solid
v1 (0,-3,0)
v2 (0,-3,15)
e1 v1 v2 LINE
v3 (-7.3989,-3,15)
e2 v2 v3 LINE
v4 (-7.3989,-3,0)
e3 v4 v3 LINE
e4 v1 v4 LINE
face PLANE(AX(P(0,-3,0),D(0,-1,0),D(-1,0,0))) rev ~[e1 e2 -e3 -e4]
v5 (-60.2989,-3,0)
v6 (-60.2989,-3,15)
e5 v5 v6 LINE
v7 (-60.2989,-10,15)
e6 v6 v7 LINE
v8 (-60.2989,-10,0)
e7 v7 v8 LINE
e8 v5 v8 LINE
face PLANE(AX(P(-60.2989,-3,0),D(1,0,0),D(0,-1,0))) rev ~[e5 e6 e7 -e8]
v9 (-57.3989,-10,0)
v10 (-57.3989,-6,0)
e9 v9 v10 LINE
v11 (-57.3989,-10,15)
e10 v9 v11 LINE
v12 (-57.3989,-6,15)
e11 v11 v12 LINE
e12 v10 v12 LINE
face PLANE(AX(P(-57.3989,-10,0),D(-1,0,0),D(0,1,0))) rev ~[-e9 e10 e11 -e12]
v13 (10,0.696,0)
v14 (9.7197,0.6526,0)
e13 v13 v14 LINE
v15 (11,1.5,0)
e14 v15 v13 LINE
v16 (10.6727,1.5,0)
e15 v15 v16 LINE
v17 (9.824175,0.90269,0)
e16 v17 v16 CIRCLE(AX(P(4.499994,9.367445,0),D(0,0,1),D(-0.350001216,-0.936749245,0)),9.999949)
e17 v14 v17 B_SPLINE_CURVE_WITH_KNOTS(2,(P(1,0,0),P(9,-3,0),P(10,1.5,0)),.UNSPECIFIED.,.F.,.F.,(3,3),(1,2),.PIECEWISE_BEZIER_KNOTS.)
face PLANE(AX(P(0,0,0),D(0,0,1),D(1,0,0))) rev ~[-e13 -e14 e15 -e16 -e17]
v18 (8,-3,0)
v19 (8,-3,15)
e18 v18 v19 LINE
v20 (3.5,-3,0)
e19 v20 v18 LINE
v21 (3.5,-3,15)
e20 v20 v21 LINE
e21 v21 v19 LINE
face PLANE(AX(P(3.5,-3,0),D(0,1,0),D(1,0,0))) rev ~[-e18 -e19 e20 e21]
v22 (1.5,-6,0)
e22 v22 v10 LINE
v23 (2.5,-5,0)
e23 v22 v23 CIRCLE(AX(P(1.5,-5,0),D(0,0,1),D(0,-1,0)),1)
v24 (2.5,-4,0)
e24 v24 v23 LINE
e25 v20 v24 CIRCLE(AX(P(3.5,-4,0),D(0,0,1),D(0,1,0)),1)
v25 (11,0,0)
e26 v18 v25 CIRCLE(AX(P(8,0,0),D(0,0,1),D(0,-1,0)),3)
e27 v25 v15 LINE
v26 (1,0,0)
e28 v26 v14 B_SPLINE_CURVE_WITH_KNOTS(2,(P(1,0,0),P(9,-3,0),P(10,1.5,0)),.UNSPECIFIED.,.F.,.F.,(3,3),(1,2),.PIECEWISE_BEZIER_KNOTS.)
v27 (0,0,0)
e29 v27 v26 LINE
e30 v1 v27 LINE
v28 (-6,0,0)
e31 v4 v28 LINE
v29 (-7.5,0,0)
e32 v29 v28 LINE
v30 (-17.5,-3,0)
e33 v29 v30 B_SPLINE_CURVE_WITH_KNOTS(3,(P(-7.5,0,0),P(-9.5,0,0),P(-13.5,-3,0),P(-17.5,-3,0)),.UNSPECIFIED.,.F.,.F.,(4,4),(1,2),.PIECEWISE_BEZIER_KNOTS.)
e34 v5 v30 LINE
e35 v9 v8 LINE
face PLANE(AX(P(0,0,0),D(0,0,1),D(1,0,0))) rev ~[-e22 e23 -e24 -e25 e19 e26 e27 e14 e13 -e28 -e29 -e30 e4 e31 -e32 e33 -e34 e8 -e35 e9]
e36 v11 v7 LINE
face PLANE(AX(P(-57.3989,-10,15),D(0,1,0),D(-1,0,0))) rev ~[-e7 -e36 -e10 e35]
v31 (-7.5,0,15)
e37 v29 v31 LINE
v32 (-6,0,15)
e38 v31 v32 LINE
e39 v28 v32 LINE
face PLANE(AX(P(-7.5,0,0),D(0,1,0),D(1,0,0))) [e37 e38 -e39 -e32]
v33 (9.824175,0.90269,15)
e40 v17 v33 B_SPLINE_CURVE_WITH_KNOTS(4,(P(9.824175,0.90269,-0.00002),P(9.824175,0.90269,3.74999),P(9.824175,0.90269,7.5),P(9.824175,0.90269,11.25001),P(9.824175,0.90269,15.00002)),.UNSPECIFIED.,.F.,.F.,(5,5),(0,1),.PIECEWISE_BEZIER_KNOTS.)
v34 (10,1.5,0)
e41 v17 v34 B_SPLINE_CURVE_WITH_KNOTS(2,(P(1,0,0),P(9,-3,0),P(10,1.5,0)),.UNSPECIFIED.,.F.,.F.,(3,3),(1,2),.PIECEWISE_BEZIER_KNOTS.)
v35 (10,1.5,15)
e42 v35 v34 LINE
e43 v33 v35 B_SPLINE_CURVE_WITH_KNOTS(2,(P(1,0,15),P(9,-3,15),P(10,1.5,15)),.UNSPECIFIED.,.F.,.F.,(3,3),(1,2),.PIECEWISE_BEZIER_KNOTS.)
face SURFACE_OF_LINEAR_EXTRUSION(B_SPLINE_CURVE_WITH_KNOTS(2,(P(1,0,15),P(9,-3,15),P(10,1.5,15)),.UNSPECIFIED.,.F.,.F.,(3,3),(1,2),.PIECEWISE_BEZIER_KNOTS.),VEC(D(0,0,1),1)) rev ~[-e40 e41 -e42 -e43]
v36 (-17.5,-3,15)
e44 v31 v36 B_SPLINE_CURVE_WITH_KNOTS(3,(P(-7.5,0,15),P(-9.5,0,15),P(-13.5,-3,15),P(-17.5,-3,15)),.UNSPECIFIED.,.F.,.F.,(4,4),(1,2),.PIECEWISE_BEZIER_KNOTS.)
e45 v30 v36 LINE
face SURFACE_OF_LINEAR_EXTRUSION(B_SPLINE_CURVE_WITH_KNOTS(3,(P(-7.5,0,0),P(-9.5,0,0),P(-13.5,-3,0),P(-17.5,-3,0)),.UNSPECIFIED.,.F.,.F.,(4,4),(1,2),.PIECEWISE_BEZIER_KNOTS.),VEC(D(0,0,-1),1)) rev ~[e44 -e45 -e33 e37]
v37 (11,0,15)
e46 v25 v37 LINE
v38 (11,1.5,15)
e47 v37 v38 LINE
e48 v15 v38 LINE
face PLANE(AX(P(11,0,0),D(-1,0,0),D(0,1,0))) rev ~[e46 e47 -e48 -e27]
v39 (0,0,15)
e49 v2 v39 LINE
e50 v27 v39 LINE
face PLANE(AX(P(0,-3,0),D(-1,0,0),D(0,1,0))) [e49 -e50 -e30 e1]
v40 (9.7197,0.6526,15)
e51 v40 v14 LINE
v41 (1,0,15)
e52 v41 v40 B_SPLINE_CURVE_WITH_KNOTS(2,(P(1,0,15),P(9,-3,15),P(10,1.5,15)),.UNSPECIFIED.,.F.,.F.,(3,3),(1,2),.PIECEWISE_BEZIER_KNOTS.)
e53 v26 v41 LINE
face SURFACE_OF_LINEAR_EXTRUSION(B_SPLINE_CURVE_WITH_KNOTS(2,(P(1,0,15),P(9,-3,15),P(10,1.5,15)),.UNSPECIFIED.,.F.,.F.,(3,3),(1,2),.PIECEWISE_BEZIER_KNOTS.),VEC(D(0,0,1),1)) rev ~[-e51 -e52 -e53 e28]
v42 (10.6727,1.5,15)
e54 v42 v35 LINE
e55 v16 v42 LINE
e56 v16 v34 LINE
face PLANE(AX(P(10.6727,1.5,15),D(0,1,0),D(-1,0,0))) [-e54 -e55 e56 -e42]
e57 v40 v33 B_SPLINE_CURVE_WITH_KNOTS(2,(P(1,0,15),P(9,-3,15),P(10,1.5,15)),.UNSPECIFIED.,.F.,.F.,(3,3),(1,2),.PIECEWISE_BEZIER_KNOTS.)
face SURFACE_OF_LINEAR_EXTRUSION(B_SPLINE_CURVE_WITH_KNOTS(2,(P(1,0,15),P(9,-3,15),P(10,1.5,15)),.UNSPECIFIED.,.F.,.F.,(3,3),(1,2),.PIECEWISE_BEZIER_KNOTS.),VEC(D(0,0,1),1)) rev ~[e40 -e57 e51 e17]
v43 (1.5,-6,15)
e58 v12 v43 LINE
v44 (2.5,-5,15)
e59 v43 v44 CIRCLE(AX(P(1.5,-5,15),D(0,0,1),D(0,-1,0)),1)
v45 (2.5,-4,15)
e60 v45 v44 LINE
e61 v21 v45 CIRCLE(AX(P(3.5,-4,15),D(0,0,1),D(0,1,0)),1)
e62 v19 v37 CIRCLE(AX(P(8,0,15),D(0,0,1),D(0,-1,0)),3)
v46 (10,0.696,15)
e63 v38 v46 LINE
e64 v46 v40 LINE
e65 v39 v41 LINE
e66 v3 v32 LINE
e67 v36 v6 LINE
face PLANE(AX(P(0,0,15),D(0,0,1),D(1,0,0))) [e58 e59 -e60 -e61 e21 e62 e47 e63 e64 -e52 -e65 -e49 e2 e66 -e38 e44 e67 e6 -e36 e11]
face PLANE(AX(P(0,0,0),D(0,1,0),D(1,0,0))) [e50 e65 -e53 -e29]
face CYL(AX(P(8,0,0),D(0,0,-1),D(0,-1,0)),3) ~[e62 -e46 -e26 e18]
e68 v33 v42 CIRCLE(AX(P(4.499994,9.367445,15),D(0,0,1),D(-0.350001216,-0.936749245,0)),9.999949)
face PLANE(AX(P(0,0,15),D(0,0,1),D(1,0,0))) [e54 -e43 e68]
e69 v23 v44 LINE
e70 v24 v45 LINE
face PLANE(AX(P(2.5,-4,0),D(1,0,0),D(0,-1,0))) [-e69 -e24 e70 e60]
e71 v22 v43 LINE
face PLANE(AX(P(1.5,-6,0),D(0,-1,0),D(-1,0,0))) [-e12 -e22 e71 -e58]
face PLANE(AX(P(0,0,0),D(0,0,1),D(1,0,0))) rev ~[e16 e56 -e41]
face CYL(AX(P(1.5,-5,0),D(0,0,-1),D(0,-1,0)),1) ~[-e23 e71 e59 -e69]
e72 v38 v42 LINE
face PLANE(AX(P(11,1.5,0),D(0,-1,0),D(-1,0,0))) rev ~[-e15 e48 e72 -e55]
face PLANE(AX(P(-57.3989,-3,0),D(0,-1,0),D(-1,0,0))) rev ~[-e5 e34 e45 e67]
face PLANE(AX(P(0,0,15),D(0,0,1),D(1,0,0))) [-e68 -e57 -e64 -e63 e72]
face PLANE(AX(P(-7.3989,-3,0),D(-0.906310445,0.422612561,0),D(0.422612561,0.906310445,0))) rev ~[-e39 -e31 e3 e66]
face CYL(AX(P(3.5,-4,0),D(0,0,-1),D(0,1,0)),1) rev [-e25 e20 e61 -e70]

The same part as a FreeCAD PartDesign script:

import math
import FreeCAD as App
import Part
import Sketcher

V = App.Vector
Q = App.Units.Quantity

doc = App.newDocument("Part")
body = doc.addObject("PartDesign::Body", "Body")

# Sketch on XY plane
sketch1 = body.newObject("Sketcher::SketchObject", "Sketch")
sketch1.AttachmentSupport = (doc.getObject("XY_Plane"), [""])
sketch1.MapMode = "FlatFace"
sketch1.addGeometry(Part.LineSegment(V(1, 0, 0), V(0, 0, 0)), False)
sketch1.addGeometry(Part.LineSegment(V(0, 0, 0), V(0, -3, 0)), False)
sketch1.addGeometry(Part.LineSegment(V(0, -3, 0), V(-7.3989, -3, 0)), False)
sketch1.addGeometry(Part.LineSegment(V(-7.3989, -3, 0), V(-6, 0, 0)), False)
sketch1.addGeometry(Part.LineSegment(V(-6, 0, 0), V(-7.5, 0, 0)), False)
sketch1.addGeometry(Part.BSplineCurve([V(-7.5, 0, 0), V(-9.5, 0, 0), V(-13.5, -3, 0), V(-17.5, -3, 0)], [4, 4], [1, 2], False, 3, [1, 1, 1, 1], False), False)
sketch1.addGeometry(Part.LineSegment(V(-17.5, -3, 0), V(-60.2989, -3, 0)), False)
sketch1.addGeometry(Part.LineSegment(V(-60.2989, -3, 0), V(-60.2989, -13, 0)), False)
sketch1.addGeometry(Part.LineSegment(V(-60.2989, -13, 0), V(8.6011, -13, 0)), False)
sketch1.addGeometry(Part.LineSegment(V(8.6011, -13, 0), V(8.6011, -10, 0)), False)
sketch1.addGeometry(Part.LineSegment(V(8.6011, -10, 0), V(-57.3989, -10, 0)), False)
sketch1.addGeometry(Part.LineSegment(V(-57.3989, -10, 0), V(-57.3989, -6, 0)), False)
sketch1.addGeometry(Part.LineSegment(V(-57.3989, -6, 0), V(1.5, -6, 0)), False)
sketch1.addGeometry(Part.ArcOfCircle(Part.Circle(V(1.5, -5, 0), V(0, 0, 1), 1), math.radians(-90), math.radians(0)), False)
sketch1.addGeometry(Part.LineSegment(V(2.5, -5, 0), V(2.5, -4, 0)), False)
sketch1.addGeometry(Part.ArcOfCircle(Part.Circle(V(3.5, -4, 0), V(0, 0, 1), 1), math.radians(90), math.radians(180)), False)
sketch1.addGeometry(Part.LineSegment(V(3.5, -3, 0), V(8, -3, 0)), False)
sketch1.addGeometry(Part.ArcOfCircle(Part.Circle(V(8, 0, 0), V(0, 0, 1), 3), math.radians(-90), math.radians(0)), False)
sketch1.addGeometry(Part.LineSegment(V(11, 0, 0), V(11, 1.5, 0)), False)
sketch1.addGeometry(Part.LineSegment(V(11, 1.5, 0), V(10.6727, 1.5, 0)), False)
sketch1.addGeometry(Part.ArcOfCircle(Part.Circle(V(4.5, 9.3675, 0), V(0, 0, 1), 10.000003), math.radians(-110.487309), math.radians(-51.882903)), False)
sketch1.addConstraint(Sketcher.Constraint("Block", 5))
sketch1.addConstraint(Sketcher.Constraint("Coincident", 0, 2, 1, 1))
sketch1.addConstraint(Sketcher.Constraint("Coincident", 1, 2, 2, 1))
sketch1.addConstraint(Sketcher.Constraint("Coincident", 2, 2, 3, 1))
sketch1.addConstraint(Sketcher.Constraint("Coincident", 3, 2, 4, 1))
sketch1.addConstraint(Sketcher.Constraint("Coincident", 4, 2, 5, 1))
sketch1.addConstraint(Sketcher.Constraint("Coincident", 5, 2, 6, 1))
sketch1.addConstraint(Sketcher.Constraint("Coincident", 6, 2, 7, 1))
sketch1.addConstraint(Sketcher.Constraint("Coincident", 7, 2, 8, 1))
sketch1.addConstraint(Sketcher.Constraint("Coincident", 8, 2, 9, 1))
sketch1.addConstraint(Sketcher.Constraint("Coincident", 9, 2, 10, 1))
sketch1.addConstraint(Sketcher.Constraint("Coincident", 10, 2, 11, 1))
sketch1.addConstraint(Sketcher.Constraint("Coincident", 11, 2, 12, 1))
sketch1.addConstraint(Sketcher.Constraint("Tangent", 12, 2, 13, 1))
sketch1.addConstraint(Sketcher.Constraint("Tangent", 13, 2, 14, 1))
sketch1.addConstraint(Sketcher.Constraint("Tangent", 14, 2, 15, 2))
sketch1.addConstraint(Sketcher.Constraint("Tangent", 15, 1, 16, 1))
sketch1.addConstraint(Sketcher.Constraint("Tangent", 16, 2, 17, 1))
sketch1.addConstraint(Sketcher.Constraint("Tangent", 17, 2, 18, 1))
sketch1.addConstraint(Sketcher.Constraint("Coincident", 18, 2, 19, 1))
sketch1.addConstraint(Sketcher.Constraint("Coincident", 19, 2, 20, 2))
sketch1.addConstraint(Sketcher.Constraint("Coincident", 20, 1, 0, 1))
sketch1.addConstraint(Sketcher.Constraint("Horizontal", 0))
sketch1.addConstraint(Sketcher.Constraint("Vertical", 1))
sketch1.addConstraint(Sketcher.Constraint("Horizontal", 2))
sketch1.addConstraint(Sketcher.Constraint("Horizontal", 4))
sketch1.addConstraint(Sketcher.Constraint("Horizontal", 6))
sketch1.addConstraint(Sketcher.Constraint("Vertical", 7))
sketch1.addConstraint(Sketcher.Constraint("Horizontal", 8))
sketch1.addConstraint(Sketcher.Constraint("Vertical", 9))
sketch1.addConstraint(Sketcher.Constraint("Horizontal", 10))
sketch1.addConstraint(Sketcher.Constraint("Vertical", 11))
sketch1.addConstraint(Sketcher.Constraint("Horizontal", 12))
sketch1.addConstraint(Sketcher.Constraint("Vertical", 14))
sketch1.addConstraint(Sketcher.Constraint("Horizontal", 16))
sketch1.addConstraint(Sketcher.Constraint("Vertical", 18))
sketch1.addConstraint(Sketcher.Constraint("Horizontal", 19))
sketch1.addConstraint(Sketcher.Constraint("Coincident", 0, 2, -1, 1))
sketch1.addConstraint(Sketcher.Constraint("Equal", 13, 15))
sketch1.addConstraint(Sketcher.Constraint("PointOnObject", 17, 3, -1))
sketch1.addConstraint(Sketcher.Constraint("Horizontal", 2, 2, 6, 2))
sketch1.addConstraint(Sketcher.Constraint("Horizontal", 6, 2, 15, 1))
sketch1.addConstraint(Sketcher.Constraint("Equal", 1, 9))
sketch1.addConstraint(Sketcher.Constraint("Equal", 0, 14))
sketch1.addConstraint(Sketcher.Constraint("Equal", 4, 18))
sketch1.addConstraint(Sketcher.Constraint("Radius", 13, Q("1 mm")))
sketch1.addConstraint(Sketcher.Constraint("Radius", 20, Q("10 mm")))
sketch1.addConstraint(Sketcher.Constraint("DistanceX", 0, 2, 0, 1, Q("1 mm")))
sketch1.addConstraint(Sketcher.Constraint("DistanceX", 10, 2, 10, 1, Q("66 mm")))
sketch1.addConstraint(Sketcher.Constraint("DistanceY", 7, 2, 7, 1, Q("10 mm")))
sketch1.addConstraint(Sketcher.Constraint("Angle", 3, Q("65.0004 deg")))
sketch1.addConstraint(Sketcher.Constraint("DistanceX", 4, 2, 4, 1, Q("1.5 mm")))
sketch1.addConstraint(Sketcher.Constraint("DistanceX", 16, 1, 16, 2, Q("4.5 mm")))
sketch1.addConstraint(Sketcher.Constraint("DistanceX", 15, 3, 20, 3, Q("1 mm")))
sketch1.addConstraint(Sketcher.Constraint("DistanceX", 4, 2, 13, 3, Q("9 mm")))
sketch1.addConstraint(Sketcher.Constraint("DistanceX", 10, 2, 2, 2, Q("50 mm")))
sketch1.addConstraint(Sketcher.Constraint("DistanceX", 7, 2, 10, 2, Q("2.9 mm")))
pad1 = body.newObject("PartDesign::Pad", "Pad")
pad1.Profile = sketch1
pad1.Length = 15

# Sketch on XY plane
sketch2 = body.newObject("Sketcher::SketchObject", "Sketch001")
sketch2.AttachmentSupport = (doc.getObject("XY_Plane"), [""])
sketch2.MapMode = "FlatFace"
sketch2.AttachmentOffset = App.Placement(V(0, 0, 15), App.Rotation())
sketch2.addGeometry(Part.LineSegment(V(11.5916, -5.7468, 0), V(-57.3989, -10, 0)), False)
sketch2.addGeometry(Part.LineSegment(V(-57.3989, -10, 0), V(-60.2989, -10, 0)), False)
sketch2.addGeometry(Part.LineSegment(V(-60.2989, -10, 0), V(-62.6934, -10.3264, 0)), False)
sketch2.addGeometry(Part.LineSegment(V(-62.6934, -10.3264, 0), V(-64.6581, -17.3068, 0)), False)
sketch2.addGeometry(Part.LineSegment(V(-64.6581, -17.3068, 0), V(11.9856, -17.8215, 0)), False)
sketch2.addGeometry(Part.LineSegment(V(11.9856, -17.8215, 0), V(11.5916, -5.7468, 0)), False)
sketch2.addConstraint(Sketcher.Constraint("Coincident", 0, 2, 1, 1))
sketch2.addConstraint(Sketcher.Constraint("Coincident", 1, 2, 2, 1))
sketch2.addConstraint(Sketcher.Constraint("Coincident", 2, 2, 3, 1))
sketch2.addConstraint(Sketcher.Constraint("Coincident", 3, 2, 4, 1))
sketch2.addConstraint(Sketcher.Constraint("Coincident", 4, 2, 5, 1))
sketch2.addConstraint(Sketcher.Constraint("Coincident", 5, 2, 0, 1))
sketch2.addConstraint(Sketcher.Constraint("Horizontal", 1))
sketch2.addConstraint(Sketcher.Constraint("DistanceX", 1, 2, 1, 1, Q("2.9 mm")))
sketch2.addConstraint(Sketcher.Constraint("DistanceY", 0, 2, -1, 1, Q("10 mm")))
sketch2.addConstraint(Sketcher.Constraint("DistanceY", 3, 2, 5, 2, Q("11.56 mm")))
sketch2.addConstraint(Sketcher.Constraint("DistanceX", 0, 2, -1, 1, Q("57.399 mm")))
sketch2.addConstraint(Sketcher.Constraint("DistanceX", 3, 2, -1, 1, Q("64.658 mm")))
sketch2.addConstraint(Sketcher.Constraint("DistanceX", 2, 2, 4, 2, Q("74.679 mm")))
sketch2.addConstraint(Sketcher.Constraint("DistanceY", 4, 2, 2, 2, Q("7.495 mm")))
sketch2.addConstraint(Sketcher.Constraint("DistanceX", 5, 2, 4, 2, Q("0.394 mm")))
sketch2.addConstraint(Sketcher.Constraint("Distance", 0, Q("69.1215 mm")))
sketch2.addConstraint(Sketcher.Constraint("Distance", 2, Q("2.4166 mm")))
sketch2.addConstraint(Sketcher.Constraint("Distance", 3, Q("7.2516 mm")))
pocket1 = body.newObject("PartDesign::Pocket", "Pocket")
pocket1.Profile = sketch2
pocket1.Length = 25

# Sketch on XY plane
sketch3 = body.newObject("Sketcher::SketchObject", "Sketch002")
sketch3.AttachmentSupport = (doc.getObject("XY_Plane"), [""])
sketch3.MapMode = "FlatFace"
sketch3.AttachmentOffset = App.Placement(V(0, 0, 15), App.Rotation())
sketch3.addGeometry(Part.LineSegment(V(10, 0.696, 0), V(11, 1.5, 0)), False)
sketch3.addGeometry(Part.LineSegment(V(11, 1.5, 0), V(10, 1.5, 0)), False)
sketch3.addGeometry(Part.BSplineCurve([V(9.719743, 0.65258, 0), V(9.897002, 1.036508, 0), V(10, 1.5, 0)], [3, 3], [1.897001705, 2], False, 2, [1, 1, 1], False), False)
sketch3.addGeometry(Part.LineSegment(V(9.7197, 0.6526, 0), V(10, 0.696, 0)), False)
sketch3.addConstraint(Sketcher.Constraint("Block", 2))
sketch3.addConstraint(Sketcher.Constraint("Coincident", 0, 2, 1, 1))
sketch3.addConstraint(Sketcher.Constraint("Coincident", 1, 2, 2, 2))
sketch3.addConstraint(Sketcher.Constraint("Coincident", 2, 1, 3, 1))
sketch3.addConstraint(Sketcher.Constraint("Coincident", 3, 2, 0, 1))
sketch3.addConstraint(Sketcher.Constraint("Horizontal", 1))
sketch3.addConstraint(Sketcher.Constraint("Vertical", 1, 2, 3, 2))
sketch3.addConstraint(Sketcher.Constraint("DistanceX", 1, 2, 1, 1, Q("1 mm")))
sketch3.addConstraint(Sketcher.Constraint("Angle", 0, Q("38.7993 deg")))
pad2 = body.newObject("PartDesign::Pad", "Pad001")
pad2.Profile = sketch3
pad2.Length = 15
pad2.Reversed = True

# Sketch on XY plane
sketch4 = body.newObject("Sketcher::SketchObject", "Sketch003")
sketch4.AttachmentSupport = (doc.getObject("XY_Plane"), [""])
sketch4.MapMode = "FlatFace"
sketch4.AttachmentOffset = App.Placement(V(0, 0, 15), App.Rotation())
sketch4.addGeometry(Part.BSplineCurve([V(9.719743, 0.65258, 0), V(9.897002, 1.036508, 0), V(10, 1.5, 0)], [3, 3], [1.897001705, 2], False, 2, [1, 1, 1], False), False)
sketch4.addGeometry(Part.LineSegment(V(10, 1.5, 0), V(1, 0, 0)), False)
sketch4.addGeometry(Part.BSplineCurve([V(1, 0, 0), V(8.176014, -2.691005, 0), V(9.719743, 0.65258, 0)], [3, 3], [1, 1.897001705], False, 2, [1, 1, 1], False), False)
sketch4.addConstraint(Sketcher.Constraint("Block", 0))
sketch4.addConstraint(Sketcher.Constraint("Block", 2))
sketch4.addConstraint(Sketcher.Constraint("Coincident", 0, 2, 1, 1))
sketch4.addConstraint(Sketcher.Constraint("Coincident", 1, 2, 2, 1))
pocket2 = body.newObject("PartDesign::Pocket", "Pocket001")
pocket2.Profile = sketch4
pocket2.Length = 15

doc.recompute()
